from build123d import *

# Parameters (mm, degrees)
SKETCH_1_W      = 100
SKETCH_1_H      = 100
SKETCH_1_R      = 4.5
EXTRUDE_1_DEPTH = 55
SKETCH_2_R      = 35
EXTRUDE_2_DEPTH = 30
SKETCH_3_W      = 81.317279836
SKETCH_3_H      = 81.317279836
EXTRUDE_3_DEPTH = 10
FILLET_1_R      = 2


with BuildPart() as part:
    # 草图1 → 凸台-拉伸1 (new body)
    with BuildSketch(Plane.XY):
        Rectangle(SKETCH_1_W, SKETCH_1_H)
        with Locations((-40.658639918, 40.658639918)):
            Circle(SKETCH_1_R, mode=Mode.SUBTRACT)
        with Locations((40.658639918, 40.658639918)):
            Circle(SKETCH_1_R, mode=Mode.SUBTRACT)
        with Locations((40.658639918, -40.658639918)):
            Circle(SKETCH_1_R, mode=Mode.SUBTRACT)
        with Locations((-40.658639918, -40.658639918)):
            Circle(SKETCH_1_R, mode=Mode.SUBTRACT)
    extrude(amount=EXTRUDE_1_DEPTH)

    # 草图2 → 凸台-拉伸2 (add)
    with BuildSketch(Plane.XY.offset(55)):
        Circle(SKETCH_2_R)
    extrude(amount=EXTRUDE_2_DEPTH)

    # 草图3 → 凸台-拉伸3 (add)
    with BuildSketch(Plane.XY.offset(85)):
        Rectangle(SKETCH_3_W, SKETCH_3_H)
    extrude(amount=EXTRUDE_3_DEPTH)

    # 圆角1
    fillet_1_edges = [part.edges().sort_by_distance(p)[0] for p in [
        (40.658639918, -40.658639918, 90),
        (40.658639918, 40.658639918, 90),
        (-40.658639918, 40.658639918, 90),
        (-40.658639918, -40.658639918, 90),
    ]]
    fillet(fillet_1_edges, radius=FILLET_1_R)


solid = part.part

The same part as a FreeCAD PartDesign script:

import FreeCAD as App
import Part
import Sketcher
from FreeCAD import Vector


def edges_at(feature, points):
    """Names of the edges that pass closest to the given points."""
    edges = feature.Shape.Edges
    near = lambda p: min(range(len(edges)), key=lambda i: edges[i].distToShape(Part.Vertex(*p))[0])
    return sorted({f"Edge{near(p) + 1}" for p in points})


def add_polygon(sketch, points):
    """Adds a closed chain of lines whose ends are joined by coincident constraints."""
    first, n = sketch.GeometryCount, len(points)
    for a, b in zip(points, points[1:] + points[:1]):
        sketch.addGeometry(Part.LineSegment(App.Vector(*a, 0), App.Vector(*b, 0)), False)
    for i in range(n):
        sketch.addConstraint(Sketcher.Constraint("Coincident", first + i, 2, first + (i + 1) % n, 1))

doc = App.newDocument("Part")
params = doc.addObject("Spreadsheet::Sheet", "Params")
for row, (alias, value) in enumerate([
    ("sketch1_diameter", "9 mm"),
    ("sketch1_width", "100 mm"),
    ("pad1_length", "55 mm"),
    ("sketch2_diameter", "70 mm"),
    ("pad2_length", "30 mm"),
    ("pad3_length", "10 mm"),
    ("fillet_radius", "2 mm"),
], start=1):
    params.set(f"A{row}", alias)
    params.set(f"B{row}", "=" + value)
    params.setAlias(f"B{row}", alias)

body = doc.addObject("PartDesign::Body", "Body")

# Sketch on XY plane
sketch1 = doc.addObject("Sketcher::SketchObject", "Sketch")
body.addObject(sketch1)
sketch1.AttachmentSupport = (doc.XY_Plane, [""])
sketch1.MapMode = "FlatFace"
add_polygon(sketch1, [(-50, 50), (-50, -50), (50, -50), (50, 50)])  # lines 0-3
sketch1.addGeometry(Part.Circle(Vector(-40.7, -40.7, 0), Vector(0, 0, 1), 4.5), False)  # 4
sketch1.addGeometry(Part.Circle(Vector(40.7, -40.7, 0), Vector(0, 0, 1), 4.5), False)  # 5
sketch1.addGeometry(Part.Circle(Vector(-40.7, 40.7, 0), Vector(0, 0, 1), 4.5), False)  # 6
sketch1.addGeometry(Part.Circle(Vector(40.7, 40.7, 0), Vector(0, 0, 1), 4.5), False)  # 7
sketch1.addConstraint([
    Sketcher.Constraint("Vertical", 0),
    Sketcher.Constraint("Horizontal", 1),
    Sketcher.Constraint("Vertical", 2),
    Sketcher.Constraint("Horizontal", 3),
    Sketcher.Constraint("Equal", 4, 5),
    Sketcher.Constraint("Equal", 5, 6),
    Sketcher.Constraint("Equal", 6, 7),
    Sketcher.Constraint("Symmetric", 5, 3, 6, 3, -1, 1),
    Sketcher.Constraint("Symmetric", 4, 3, 7, 3, -1, 1),
    Sketcher.Constraint("Symmetric", 0, 2, 2, 2, -1, 1),
    Sketcher.Constraint("Symmetric", 4, 3, 5, 3, -2),
    Sketcher.Constraint("Equal", 3, 0),
    Sketcher.Constraint("Diameter", 4, 9.0),
    Sketcher.Constraint("DistanceX", 1, 1, 1, 2, 100.0),
    Sketcher.Constraint("DistanceX", 4, 3, -1, 1, 40.65864),
    Sketcher.Constraint("DistanceY", 4, 3, -1, 1, 40.65864),
])
sketch1.setExpression("Constraints[16]", "Params.sketch1_diameter")
sketch1.setExpression("Constraints[17]", "Params.sketch1_width")
pad1 = doc.addObject("PartDesign::Pad", "Pad")
body.addObject(pad1)
pad1.Profile = sketch1
pad1.setExpression("Length", "Params.pad1_length")

# Sketch on XY plane
sketch2 = doc.addObject("Sketcher::SketchObject", "Sketch001")
body.addObject(sketch2)
sketch2.AttachmentSupport = (doc.XY_Plane, [""])
sketch2.MapMode = "FlatFace"
sketch2.AttachmentOffset = App.Placement(Vector(0, 0, 55), App.Rotation())
sketch2.addGeometry(Part.Circle(Vector(0, 0, 0), Vector(0, 0, 1), 35), False)
sketch2.addConstraint([
    Sketcher.Constraint("Coincident", 0, 3, -1, 1),
    Sketcher.Constraint("Diameter", 0, 70.0),
])
sketch2.setExpression("Constraints[1]", "Params.sketch2_diameter")
pad2 = doc.addObject("PartDesign::Pad", "Pad001")
body.addObject(pad2)
pad2.Profile = sketch2
pad2.setExpression("Length", "Params.pad2_length")

# Sketch on XY plane
sketch3 = doc.addObject("Sketcher::SketchObject", "Sketch002")
body.addObject(sketch3)
sketch3.AttachmentSupport = (doc.XY_Plane, [""])
sketch3.MapMode = "FlatFace"
sketch3.AttachmentOffset = App.Placement(Vector(0, 0, 85), App.Rotation())
add_polygon(sketch3, [(-41, 41), (-41, -41), (41, -41), (41, 41)])  # lines 0-3
sketch3.addConstraint([
    Sketcher.Constraint("Vertical", 0),
    Sketcher.Constraint("Horizontal", 1),
    Sketcher.Constraint("Vertical", 2),
    Sketcher.Constraint("Horizontal", 3),
    Sketcher.Constraint("Symmetric", 0, 2, 2, 2, -1, 1),
    Sketcher.Constraint("Equal", 3, 0),
    Sketcher.Constraint("DistanceX", 1, 1, 1, 2, 81.31728),
])
pad3 = doc.addObject("PartDesign::Pad", "Pad002")
body.addObject(pad3)
pad3.Profile = sketch3
pad3.setExpression("Length", "Params.pad3_length")
doc.recompute()

fillet = doc.addObject("PartDesign::Fillet", "Fillet")
body.addObject(fillet)
fillet.Base = (pad3, edges_at(pad3, [
    (40.659, -40.659, 90),
    (40.659, 40.659, 90),
    (-40.659, 40.659, 90),
    (-40.659, -40.659, 90),
]))
fillet.setExpression("Radius", "Params.fillet_radius")

doc.recompute()
